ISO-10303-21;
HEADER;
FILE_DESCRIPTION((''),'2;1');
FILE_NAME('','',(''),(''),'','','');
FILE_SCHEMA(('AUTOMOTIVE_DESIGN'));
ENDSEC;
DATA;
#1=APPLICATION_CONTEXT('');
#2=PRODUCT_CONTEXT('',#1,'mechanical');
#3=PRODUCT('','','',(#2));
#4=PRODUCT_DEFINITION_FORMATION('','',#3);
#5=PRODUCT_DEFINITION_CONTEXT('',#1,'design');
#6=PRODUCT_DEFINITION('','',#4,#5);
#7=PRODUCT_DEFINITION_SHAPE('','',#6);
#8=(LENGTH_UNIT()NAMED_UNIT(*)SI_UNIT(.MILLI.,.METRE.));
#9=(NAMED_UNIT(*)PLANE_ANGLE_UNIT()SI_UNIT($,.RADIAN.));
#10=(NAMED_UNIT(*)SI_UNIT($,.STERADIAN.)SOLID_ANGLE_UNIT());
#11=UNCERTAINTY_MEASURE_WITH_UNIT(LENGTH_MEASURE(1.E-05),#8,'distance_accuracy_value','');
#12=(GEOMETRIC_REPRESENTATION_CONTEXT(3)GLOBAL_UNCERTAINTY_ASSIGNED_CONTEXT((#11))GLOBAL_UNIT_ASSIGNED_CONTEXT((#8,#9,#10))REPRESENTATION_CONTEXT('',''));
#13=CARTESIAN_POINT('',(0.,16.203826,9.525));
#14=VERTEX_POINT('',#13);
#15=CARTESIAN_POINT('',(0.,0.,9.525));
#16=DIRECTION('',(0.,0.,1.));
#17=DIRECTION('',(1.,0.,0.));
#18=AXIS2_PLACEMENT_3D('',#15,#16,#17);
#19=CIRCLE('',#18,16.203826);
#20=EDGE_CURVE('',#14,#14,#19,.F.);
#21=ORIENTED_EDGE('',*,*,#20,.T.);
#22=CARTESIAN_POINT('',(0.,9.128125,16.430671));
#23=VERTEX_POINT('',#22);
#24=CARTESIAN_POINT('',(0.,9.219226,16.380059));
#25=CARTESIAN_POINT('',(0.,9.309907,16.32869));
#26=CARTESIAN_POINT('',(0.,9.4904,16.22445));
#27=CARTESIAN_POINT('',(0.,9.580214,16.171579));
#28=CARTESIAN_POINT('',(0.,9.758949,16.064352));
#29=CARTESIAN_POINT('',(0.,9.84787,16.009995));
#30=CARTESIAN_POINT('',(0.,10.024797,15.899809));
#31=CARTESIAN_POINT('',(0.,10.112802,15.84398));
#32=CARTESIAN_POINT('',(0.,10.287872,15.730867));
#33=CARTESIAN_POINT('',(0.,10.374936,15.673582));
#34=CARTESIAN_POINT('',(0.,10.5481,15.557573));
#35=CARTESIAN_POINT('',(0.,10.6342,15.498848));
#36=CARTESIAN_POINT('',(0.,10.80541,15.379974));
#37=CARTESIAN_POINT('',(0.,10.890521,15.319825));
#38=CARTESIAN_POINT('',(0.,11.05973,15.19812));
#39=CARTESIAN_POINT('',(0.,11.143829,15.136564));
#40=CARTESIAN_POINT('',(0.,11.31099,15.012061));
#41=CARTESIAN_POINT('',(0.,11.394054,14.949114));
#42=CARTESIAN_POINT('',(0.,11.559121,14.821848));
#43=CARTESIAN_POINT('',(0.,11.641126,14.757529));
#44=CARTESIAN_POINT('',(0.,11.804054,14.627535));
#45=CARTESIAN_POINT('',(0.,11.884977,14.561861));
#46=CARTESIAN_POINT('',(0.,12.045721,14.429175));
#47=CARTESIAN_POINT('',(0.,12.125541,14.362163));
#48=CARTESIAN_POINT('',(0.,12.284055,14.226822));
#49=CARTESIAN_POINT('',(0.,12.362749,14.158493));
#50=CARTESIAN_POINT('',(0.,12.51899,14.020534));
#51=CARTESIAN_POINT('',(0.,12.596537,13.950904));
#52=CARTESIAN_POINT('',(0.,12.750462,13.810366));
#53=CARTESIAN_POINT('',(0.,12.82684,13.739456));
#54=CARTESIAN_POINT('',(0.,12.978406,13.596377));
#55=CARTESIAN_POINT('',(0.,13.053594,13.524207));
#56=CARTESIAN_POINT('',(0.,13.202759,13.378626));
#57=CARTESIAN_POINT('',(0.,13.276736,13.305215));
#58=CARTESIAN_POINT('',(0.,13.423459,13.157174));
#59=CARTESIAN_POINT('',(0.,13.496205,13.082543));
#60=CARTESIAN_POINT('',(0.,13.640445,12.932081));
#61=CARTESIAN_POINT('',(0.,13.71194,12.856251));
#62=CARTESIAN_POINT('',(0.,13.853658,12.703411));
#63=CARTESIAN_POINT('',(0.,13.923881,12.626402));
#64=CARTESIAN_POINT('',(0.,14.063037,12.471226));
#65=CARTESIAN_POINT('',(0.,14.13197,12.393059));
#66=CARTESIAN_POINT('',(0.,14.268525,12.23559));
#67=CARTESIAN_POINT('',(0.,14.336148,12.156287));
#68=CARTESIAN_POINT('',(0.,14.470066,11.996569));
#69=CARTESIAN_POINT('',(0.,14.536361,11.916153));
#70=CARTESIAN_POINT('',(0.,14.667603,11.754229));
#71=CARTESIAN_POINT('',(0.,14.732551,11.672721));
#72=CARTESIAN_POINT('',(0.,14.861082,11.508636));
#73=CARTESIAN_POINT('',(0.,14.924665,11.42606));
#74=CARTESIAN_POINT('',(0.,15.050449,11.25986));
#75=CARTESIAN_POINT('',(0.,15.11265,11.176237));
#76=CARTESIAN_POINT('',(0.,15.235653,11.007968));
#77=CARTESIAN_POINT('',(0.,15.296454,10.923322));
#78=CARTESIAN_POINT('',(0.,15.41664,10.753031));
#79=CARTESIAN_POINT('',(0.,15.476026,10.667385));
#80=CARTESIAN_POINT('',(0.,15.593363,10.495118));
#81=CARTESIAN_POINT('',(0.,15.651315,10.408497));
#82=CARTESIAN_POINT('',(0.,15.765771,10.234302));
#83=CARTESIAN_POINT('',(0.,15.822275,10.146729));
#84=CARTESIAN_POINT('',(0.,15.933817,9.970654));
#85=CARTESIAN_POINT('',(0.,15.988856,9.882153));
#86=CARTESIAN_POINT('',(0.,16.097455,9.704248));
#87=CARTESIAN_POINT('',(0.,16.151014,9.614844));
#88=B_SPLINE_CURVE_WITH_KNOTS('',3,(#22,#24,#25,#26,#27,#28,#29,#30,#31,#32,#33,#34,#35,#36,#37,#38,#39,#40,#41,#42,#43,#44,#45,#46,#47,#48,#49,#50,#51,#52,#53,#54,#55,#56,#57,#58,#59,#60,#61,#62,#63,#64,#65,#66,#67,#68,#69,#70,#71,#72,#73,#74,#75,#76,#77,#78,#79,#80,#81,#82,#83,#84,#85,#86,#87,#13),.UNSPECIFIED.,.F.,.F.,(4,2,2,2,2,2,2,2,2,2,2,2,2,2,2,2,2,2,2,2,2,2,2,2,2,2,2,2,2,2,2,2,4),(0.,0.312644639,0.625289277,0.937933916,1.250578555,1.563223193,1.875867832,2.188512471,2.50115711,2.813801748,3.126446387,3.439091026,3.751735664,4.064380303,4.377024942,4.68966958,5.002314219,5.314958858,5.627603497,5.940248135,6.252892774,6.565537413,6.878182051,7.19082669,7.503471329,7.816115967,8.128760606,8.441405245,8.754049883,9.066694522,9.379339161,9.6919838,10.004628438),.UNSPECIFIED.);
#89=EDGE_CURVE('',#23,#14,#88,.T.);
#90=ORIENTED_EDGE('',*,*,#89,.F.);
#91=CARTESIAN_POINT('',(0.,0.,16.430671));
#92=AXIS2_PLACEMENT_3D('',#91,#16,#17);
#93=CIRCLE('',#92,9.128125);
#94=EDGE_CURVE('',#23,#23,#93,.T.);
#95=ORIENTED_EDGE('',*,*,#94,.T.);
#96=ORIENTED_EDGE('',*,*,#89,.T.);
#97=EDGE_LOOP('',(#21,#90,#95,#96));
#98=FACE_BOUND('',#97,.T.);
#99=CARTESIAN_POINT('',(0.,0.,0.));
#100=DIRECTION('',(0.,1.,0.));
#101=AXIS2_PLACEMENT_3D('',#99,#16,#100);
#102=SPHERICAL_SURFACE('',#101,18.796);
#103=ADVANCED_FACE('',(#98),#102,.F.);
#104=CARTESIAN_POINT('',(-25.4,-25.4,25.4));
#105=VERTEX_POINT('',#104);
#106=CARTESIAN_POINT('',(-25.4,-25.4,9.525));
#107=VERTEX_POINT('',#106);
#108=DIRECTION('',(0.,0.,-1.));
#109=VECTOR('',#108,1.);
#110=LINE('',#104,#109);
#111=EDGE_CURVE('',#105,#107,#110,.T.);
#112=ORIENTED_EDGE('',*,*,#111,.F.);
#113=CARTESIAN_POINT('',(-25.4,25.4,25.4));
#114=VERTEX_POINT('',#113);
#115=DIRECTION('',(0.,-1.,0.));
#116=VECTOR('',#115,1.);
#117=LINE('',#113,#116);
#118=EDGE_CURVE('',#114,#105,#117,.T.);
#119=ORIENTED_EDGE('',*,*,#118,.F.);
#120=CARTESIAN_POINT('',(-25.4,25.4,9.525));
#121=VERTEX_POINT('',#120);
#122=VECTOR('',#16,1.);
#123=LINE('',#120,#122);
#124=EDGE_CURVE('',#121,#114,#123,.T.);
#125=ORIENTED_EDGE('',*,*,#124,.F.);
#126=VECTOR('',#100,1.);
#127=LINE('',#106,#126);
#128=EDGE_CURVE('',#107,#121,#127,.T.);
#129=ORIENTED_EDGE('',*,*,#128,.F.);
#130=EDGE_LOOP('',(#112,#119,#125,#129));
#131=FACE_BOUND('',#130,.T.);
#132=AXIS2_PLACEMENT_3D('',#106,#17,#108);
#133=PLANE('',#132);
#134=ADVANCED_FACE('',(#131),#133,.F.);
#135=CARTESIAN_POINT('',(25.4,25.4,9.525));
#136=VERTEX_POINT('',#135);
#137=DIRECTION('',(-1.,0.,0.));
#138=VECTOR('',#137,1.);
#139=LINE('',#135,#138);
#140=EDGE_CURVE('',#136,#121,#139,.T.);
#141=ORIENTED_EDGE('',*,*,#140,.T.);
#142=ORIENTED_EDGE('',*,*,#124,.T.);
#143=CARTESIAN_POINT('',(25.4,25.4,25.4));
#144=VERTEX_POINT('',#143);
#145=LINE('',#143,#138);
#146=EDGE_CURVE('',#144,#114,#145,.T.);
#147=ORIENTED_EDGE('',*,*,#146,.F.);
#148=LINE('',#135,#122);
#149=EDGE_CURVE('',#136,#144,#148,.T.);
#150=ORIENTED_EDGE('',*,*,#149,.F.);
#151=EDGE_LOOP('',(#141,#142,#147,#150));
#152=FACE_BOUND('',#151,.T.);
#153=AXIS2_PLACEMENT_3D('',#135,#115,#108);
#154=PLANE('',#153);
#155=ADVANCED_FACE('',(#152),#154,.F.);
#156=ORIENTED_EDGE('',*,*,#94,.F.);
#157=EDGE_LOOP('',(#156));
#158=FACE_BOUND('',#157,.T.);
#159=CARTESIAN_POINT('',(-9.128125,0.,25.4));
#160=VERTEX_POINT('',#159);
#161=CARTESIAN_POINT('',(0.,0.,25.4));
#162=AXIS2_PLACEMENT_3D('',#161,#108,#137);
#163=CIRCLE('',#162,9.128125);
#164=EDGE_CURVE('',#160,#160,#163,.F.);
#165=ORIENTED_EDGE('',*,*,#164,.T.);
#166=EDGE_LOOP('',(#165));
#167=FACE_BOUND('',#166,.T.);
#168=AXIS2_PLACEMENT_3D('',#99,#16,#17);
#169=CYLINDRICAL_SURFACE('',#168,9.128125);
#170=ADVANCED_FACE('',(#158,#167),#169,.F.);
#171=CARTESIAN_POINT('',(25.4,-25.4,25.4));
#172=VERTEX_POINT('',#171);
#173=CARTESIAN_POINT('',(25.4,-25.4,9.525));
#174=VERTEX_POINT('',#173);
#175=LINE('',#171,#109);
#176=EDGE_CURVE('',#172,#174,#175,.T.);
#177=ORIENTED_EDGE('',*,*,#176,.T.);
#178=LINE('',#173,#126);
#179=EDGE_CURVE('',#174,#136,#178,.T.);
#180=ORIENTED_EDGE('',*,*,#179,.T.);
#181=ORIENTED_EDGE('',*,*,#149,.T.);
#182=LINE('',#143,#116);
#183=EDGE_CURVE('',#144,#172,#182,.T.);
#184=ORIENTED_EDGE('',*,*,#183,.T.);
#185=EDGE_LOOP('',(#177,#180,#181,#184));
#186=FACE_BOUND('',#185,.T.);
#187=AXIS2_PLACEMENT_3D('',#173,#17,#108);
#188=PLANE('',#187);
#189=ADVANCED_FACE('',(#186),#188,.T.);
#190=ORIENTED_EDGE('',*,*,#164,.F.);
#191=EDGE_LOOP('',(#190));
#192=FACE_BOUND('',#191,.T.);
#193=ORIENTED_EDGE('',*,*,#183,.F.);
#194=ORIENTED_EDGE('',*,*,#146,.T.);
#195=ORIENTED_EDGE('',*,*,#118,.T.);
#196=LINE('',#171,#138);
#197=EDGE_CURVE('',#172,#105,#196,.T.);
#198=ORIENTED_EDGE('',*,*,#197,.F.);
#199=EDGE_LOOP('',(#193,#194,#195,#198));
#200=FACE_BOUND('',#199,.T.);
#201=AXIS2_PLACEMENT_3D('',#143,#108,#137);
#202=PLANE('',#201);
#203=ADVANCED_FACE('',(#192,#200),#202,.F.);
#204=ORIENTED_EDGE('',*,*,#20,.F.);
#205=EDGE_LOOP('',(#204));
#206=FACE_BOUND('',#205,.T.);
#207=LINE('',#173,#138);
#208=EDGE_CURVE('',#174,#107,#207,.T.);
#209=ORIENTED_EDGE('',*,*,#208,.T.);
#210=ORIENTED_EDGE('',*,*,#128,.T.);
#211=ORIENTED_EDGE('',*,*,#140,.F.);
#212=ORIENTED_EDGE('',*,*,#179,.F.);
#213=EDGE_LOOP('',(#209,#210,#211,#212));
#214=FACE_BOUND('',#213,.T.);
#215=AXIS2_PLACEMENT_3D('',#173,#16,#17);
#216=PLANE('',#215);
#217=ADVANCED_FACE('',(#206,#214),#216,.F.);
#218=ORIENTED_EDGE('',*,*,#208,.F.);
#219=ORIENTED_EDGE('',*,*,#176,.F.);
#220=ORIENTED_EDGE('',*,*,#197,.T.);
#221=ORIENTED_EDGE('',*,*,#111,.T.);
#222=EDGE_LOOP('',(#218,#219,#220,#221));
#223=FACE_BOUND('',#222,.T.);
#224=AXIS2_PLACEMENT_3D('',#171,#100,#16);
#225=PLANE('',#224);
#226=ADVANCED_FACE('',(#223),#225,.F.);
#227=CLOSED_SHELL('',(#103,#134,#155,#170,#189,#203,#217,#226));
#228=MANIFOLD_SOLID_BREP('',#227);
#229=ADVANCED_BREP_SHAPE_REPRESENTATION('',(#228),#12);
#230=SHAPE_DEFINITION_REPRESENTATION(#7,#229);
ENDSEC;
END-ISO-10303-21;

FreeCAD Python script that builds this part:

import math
import FreeCAD as App
import Part
import Sketcher
from FreeCAD import Vector
Q = App.Units.Quantity


def add_polygon(sketch, points):
    """Adds a closed chain of lines whose ends are joined by coincident constraints."""
    first, n = sketch.GeometryCount, len(points)
    for a, b in zip(points, points[1:] + points[:1]):
        sketch.addGeometry(Part.LineSegment(App.Vector(*a, 0), App.Vector(*b, 0)), False)
    for i in range(n):
        sketch.addConstraint(Sketcher.Constraint("Coincident", first + i, 2, first + (i + 1) % n, 1))

doc = App.newDocument("Part")
params = doc.addObject("Spreadsheet::Sheet", "Params")
for row, (alias, value) in enumerate([
    ("sketch1_width", "2 in"),
    ("sketch1_height", "0.625 in"),
    ("pad1_length", "2 in"),
    ("sketch2_radius", "0.74 in"),
    ("sketch2_width", "0.359375 in"),
    ("groove_angle", "360 deg"),
], start=1):
    params.set(f"A{row}", alias)
    params.set(f"B{row}", "=" + value)
    params.setAlias(f"B{row}", alias)

body = doc.addObject("PartDesign::Body", "Body")

sketch1 = body.newObject("Sketcher::SketchObject", "Sketch")
sketch1.AttachmentSupport = (doc.getObject("YZ_Plane"), [""])
sketch1.MapMode = "FlatFace"
add_polygon(sketch1, [(25, 25), (-25, 25), (-25, 10), (25, 10)])
sketch1.addConstraint(Sketcher.Constraint("Horizontal", 0))
sketch1.addConstraint(Sketcher.Constraint("Vertical", 1))
sketch1.addConstraint(Sketcher.Constraint("Horizontal", 2))
sketch1.addConstraint(Sketcher.Constraint("Vertical", 3))
sketch1.addConstraint(Sketcher.Constraint("DistanceX", 0, 2, 0, 1, Q("2 in")))
sketch1.addConstraint(Sketcher.Constraint("DistanceX", 0, 2, -1, 1, Q("1 in")))
sketch1.addConstraint(Sketcher.Constraint("DistanceY", -1, 1, 0, 2, Q("1 in")))
sketch1.addConstraint(Sketcher.Constraint("DistanceY", 1, 2, 1, 1, Q("0.625 in")))
sketch1.setExpression("Constraints[8]", "Params.sketch1_width")
sketch1.setExpression("Constraints[11]", "Params.sketch1_height")
pad1 = body.newObject("PartDesign::Pad", "Pad")
pad1.Profile = sketch1
pad1.setExpression("Length", "Params.pad1_length")
pad1.Midplane = True

sketch2 = body.newObject("Sketcher::SketchObject", "Sketch001")
sketch2.AttachmentSupport = (doc.getObject("YZ_Plane"), [""])
sketch2.MapMode = "FlatFace"
sketch2.addGeometry(Part.LineSegment(Vector(0, 34, 0), Vector(0, 0, 0)), False)
sketch2.addGeometry(Part.LineSegment(Vector(0, 0, 0), Vector(19, 0, 0)), False)
sketch2.addGeometry(Part.ArcOfCircle(Part.Circle(Vector(0, 0, 0), Vector(0, 0, 1), 19), math.radians(0), math.radians(61)), False)
sketch2.addGeometry(Part.LineSegment(Vector(9, 16, 0), Vector(9, 34, 0)), False)
sketch2.addGeometry(Part.LineSegment(Vector(9, 34, 0), Vector(0, 34, 0)), False)
sketch2.addConstraint(Sketcher.Constraint("Coincident", 0, 2, 1, 1))
sketch2.addConstraint(Sketcher.Constraint("Coincident", 1, 2, 2, 1))
sketch2.addConstraint(Sketcher.Constraint("Coincident", 2, 2, 3, 1))
sketch2.addConstraint(Sketcher.Constraint("Coincident", 3, 2, 4, 1))
sketch2.addConstraint(Sketcher.Constraint("Coincident", 4, 2, 0, 1))
sketch2.addConstraint(Sketcher.Constraint("Vertical", 0))
sketch2.addConstraint(Sketcher.Constraint("Horizontal", 1))
sketch2.addConstraint(Sketcher.Constraint("Vertical", 3))
sketch2.addConstraint(Sketcher.Constraint("Horizontal", 4))
sketch2.addConstraint(Sketcher.Constraint("Coincident", 2, 3, -1, 1))
sketch2.addConstraint(Sketcher.Constraint("Coincident", 0, 2, -1, 1))
sketch2.addConstraint(Sketcher.Constraint("Radius", 2, Q("0.74 in")))
sketch2.addConstraint(Sketcher.Constraint("DistanceX", 4, 2, 4, 1, Q("0.359375 in")))
sketch2.addConstraint(Sketcher.Constraint("DistanceY", 0, 2, 0, 1, Q("34.061609 mm")))
sketch2.setExpression("Constraints[11]", "Params.sketch2_radius")
sketch2.setExpression("Constraints[12]", "Params.sketch2_width")
groove = body.newObject("PartDesign::Groove", "Groove")
groove.Profile = sketch2
groove.ReferenceAxis = (sketch2, ["V_Axis"])
groove.setExpression("Angle", "Params.groove_angle")

doc.recompute()
